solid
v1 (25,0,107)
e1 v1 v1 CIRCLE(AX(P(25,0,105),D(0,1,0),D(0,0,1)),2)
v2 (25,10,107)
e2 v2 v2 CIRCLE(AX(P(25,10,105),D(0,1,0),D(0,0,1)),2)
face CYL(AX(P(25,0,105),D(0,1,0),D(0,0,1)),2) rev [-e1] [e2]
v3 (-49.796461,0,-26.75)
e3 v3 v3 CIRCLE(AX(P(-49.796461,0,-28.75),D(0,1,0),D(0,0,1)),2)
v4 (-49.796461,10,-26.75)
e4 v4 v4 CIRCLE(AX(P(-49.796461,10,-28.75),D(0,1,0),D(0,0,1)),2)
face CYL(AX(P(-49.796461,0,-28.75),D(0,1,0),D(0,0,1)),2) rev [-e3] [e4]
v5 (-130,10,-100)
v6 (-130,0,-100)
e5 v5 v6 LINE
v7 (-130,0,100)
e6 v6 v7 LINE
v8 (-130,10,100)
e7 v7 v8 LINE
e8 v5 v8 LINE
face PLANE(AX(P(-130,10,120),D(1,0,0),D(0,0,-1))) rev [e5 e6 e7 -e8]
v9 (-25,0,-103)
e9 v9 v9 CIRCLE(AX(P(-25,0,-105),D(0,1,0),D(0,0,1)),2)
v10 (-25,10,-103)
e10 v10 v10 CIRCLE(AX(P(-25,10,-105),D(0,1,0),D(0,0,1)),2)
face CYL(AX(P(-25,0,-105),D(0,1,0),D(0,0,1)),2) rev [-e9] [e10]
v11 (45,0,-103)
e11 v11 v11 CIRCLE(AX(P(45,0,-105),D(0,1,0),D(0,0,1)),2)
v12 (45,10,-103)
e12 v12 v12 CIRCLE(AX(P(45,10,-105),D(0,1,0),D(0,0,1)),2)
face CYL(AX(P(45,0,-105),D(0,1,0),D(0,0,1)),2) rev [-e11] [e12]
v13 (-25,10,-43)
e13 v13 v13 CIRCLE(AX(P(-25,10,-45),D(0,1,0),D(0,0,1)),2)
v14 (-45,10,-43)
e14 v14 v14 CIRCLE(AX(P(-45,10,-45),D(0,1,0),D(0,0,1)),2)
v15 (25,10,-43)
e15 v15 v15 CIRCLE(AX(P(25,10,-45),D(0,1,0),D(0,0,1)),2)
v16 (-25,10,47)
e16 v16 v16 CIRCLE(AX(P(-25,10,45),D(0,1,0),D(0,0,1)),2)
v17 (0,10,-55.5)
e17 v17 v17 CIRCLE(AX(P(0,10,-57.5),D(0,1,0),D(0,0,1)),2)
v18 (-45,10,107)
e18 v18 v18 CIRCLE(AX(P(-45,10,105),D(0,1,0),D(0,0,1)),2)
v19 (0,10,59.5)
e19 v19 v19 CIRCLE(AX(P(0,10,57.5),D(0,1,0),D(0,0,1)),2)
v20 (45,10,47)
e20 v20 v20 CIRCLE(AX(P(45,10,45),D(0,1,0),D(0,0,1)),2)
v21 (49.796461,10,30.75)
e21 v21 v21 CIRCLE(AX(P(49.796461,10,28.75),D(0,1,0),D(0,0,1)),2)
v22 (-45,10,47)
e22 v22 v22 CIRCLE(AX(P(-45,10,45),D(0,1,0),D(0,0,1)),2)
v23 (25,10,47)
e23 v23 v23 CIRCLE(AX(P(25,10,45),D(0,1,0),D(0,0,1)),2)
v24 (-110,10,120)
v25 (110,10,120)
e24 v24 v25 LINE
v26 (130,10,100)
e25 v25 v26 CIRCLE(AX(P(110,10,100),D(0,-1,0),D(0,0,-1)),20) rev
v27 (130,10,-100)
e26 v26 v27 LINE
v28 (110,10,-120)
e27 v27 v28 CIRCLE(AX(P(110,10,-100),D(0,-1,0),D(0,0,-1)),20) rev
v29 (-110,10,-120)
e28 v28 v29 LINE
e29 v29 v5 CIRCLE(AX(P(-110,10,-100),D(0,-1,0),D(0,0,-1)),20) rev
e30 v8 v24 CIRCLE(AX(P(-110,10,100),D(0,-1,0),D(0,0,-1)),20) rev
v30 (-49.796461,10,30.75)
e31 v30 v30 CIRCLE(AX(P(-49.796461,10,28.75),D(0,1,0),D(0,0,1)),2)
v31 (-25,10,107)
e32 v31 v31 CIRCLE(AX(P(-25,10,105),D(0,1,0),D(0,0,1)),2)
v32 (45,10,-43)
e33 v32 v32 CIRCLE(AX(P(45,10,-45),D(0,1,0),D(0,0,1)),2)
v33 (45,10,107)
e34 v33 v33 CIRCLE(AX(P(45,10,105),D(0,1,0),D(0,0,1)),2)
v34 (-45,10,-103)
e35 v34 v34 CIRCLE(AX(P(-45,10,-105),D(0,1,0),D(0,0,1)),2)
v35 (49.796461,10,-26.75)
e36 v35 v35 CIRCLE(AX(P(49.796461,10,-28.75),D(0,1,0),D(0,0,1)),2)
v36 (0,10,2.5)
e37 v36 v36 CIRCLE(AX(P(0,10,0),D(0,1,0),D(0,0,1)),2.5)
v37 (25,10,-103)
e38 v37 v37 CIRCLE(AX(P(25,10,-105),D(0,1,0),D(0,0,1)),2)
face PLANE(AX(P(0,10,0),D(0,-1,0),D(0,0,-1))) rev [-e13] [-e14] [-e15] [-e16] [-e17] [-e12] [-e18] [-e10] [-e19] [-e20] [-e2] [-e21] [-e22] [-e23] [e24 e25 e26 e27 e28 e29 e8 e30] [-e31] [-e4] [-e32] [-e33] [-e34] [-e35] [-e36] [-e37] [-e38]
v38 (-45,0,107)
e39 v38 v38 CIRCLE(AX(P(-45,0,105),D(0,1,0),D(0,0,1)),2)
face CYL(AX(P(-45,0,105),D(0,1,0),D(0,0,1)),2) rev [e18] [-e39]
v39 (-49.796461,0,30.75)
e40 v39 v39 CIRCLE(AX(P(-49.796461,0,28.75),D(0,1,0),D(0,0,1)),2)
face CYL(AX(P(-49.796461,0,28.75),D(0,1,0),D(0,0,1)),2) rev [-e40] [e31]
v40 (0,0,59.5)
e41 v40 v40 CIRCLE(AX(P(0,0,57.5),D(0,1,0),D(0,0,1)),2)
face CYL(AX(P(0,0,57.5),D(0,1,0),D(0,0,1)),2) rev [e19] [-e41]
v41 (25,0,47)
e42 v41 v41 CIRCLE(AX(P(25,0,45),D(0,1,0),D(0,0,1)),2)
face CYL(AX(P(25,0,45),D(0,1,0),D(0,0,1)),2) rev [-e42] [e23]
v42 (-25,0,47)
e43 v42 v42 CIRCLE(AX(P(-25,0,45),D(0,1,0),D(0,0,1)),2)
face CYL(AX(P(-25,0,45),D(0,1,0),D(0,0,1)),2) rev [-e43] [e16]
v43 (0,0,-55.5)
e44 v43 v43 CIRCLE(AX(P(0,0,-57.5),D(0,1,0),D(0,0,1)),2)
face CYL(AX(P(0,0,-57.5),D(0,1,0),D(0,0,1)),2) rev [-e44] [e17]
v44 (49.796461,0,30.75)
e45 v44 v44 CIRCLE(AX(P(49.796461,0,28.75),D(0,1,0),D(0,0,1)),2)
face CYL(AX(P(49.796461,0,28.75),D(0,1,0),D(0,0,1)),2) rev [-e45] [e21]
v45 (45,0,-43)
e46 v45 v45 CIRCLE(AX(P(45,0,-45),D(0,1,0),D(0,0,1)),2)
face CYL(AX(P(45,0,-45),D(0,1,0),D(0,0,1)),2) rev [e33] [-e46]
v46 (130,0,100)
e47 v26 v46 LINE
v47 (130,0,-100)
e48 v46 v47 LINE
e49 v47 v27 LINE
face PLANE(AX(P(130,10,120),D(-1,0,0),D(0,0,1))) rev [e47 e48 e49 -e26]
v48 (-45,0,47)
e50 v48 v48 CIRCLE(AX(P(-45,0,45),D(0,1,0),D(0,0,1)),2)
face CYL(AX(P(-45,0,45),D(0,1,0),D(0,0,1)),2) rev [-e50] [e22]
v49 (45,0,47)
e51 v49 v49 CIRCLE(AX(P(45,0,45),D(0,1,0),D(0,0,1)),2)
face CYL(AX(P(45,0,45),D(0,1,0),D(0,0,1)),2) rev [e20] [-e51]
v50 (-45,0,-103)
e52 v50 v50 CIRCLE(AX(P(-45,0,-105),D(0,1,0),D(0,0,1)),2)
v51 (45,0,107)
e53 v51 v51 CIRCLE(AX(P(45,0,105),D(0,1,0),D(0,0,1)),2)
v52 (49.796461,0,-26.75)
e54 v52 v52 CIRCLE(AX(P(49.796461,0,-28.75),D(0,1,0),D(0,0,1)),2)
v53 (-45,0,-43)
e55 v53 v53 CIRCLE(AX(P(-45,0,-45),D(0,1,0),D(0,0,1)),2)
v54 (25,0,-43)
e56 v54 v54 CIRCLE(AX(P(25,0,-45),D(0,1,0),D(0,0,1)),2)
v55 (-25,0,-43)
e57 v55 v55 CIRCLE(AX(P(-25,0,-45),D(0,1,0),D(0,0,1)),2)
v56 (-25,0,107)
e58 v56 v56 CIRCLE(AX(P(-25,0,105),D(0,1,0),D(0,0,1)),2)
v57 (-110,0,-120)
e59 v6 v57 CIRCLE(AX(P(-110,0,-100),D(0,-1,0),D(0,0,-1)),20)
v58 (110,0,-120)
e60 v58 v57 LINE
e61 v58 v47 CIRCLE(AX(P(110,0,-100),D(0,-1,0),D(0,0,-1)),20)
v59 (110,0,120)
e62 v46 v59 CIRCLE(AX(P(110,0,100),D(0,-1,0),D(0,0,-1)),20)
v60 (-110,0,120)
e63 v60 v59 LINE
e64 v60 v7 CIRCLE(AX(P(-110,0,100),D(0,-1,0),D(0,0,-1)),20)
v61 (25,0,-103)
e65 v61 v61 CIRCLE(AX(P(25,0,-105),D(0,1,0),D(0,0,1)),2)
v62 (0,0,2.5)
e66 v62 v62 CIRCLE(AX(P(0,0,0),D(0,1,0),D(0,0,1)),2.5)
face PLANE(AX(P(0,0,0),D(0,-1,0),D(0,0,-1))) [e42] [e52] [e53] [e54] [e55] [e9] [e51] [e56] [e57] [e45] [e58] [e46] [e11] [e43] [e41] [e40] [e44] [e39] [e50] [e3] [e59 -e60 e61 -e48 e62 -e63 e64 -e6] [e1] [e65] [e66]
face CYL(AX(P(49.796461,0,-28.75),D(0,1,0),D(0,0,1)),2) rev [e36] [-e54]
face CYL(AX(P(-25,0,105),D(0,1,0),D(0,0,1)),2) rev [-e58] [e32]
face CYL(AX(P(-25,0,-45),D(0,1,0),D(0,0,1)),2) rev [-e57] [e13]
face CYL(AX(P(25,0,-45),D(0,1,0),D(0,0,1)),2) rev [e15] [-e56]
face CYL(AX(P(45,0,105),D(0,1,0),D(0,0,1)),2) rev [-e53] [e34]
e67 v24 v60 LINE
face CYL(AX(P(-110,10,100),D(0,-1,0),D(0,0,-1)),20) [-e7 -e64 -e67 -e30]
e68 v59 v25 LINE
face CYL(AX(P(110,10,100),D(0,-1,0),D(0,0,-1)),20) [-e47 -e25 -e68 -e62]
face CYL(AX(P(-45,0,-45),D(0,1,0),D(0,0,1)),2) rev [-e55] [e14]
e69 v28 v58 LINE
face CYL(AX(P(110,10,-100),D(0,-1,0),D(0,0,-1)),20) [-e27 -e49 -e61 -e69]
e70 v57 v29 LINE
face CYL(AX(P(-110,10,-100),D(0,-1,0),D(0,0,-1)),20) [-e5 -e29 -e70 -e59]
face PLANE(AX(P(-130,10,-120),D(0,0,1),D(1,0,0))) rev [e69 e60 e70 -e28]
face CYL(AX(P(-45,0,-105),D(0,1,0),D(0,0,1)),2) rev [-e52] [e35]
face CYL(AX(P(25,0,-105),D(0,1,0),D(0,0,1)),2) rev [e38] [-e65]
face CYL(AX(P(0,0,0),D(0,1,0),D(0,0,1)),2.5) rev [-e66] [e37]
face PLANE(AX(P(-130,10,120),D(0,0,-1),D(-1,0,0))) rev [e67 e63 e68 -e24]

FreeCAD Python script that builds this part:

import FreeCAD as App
import Part
import Sketcher

V = App.Vector
Q = App.Units.Quantity


def edges_at(feature, points):
    """Names of the edges that pass closest to the given points."""
    edges = feature.Shape.Edges
    near = lambda p: min(range(len(edges)), key=lambda i: edges[i].distToShape(Part.Vertex(*p))[0])
    return sorted({f"Edge{near(p) + 1}" for p in points})


def add_polygon(sketch, points):
    """Adds a closed chain of lines whose ends are joined by coincident constraints."""
    first, n = sketch.GeometryCount, len(points)
    for a, b in zip(points, points[1:] + points[:1]):
        sketch.addGeometry(Part.LineSegment(App.Vector(*a, 0), App.Vector(*b, 0)), False)
    for i in range(n):
        sketch.addConstraint(Sketcher.Constraint("Coincident", first + i, 2, first + (i + 1) % n, 1))

doc = App.newDocument("Part")
body = doc.addObject("PartDesign::Body", "Body")

sketch1 = body.newObject("Sketcher::SketchObject", "Sketch")
sketch1.AttachmentSupport = (doc.getObject("XZ_Plane"), [""])
sketch1.MapMode = "FlatFace"
add_polygon(sketch1, [(-130, -120), (-130, 120), (130, 120), (130, -120)])
sketch1.addConstraint(Sketcher.Constraint("Vertical", 0))
sketch1.addConstraint(Sketcher.Constraint("Horizontal", 1))
sketch1.addConstraint(Sketcher.Constraint("Vertical", 2))
sketch1.addConstraint(Sketcher.Constraint("Horizontal", 3))
sketch1.addConstraint(Sketcher.Constraint("Symmetric", 0, 2, 2, 2, -1, 1))
sketch1.addConstraint(Sketcher.Constraint("DistanceX", 1, 1, 1, 2, Q("260 mm")))
sketch1.addConstraint(Sketcher.Constraint("DistanceY", 0, 1, 0, 2, Q("240 mm")))
pad1 = body.newObject("PartDesign::Pad", "Pad")
pad1.Profile = sketch1
pad1.Length = 10
pad1.Reversed = True
doc.recompute()

fillet = body.newObject("PartDesign::Fillet", "Fillet")
fillet.Base = (pad1, edges_at(pad1, [
    (130, 5, 120),
    (-130, 5, 120),
    (-130, 5, -120),
    (130, 5, -120),
]))
fillet.Radius = 20

sketch2 = body.newObject("Sketcher::SketchObject", "Sketch001")
sketch2.AttachmentSupport = (doc.getObject("XZ_Plane"), [""])
sketch2.MapMode = "FlatFace"
sketch2.AttachmentOffset = App.Placement(V(0, 0, -10), App.Rotation())
sketch2.addGeometry(Part.Circle(V(0, 0, 0), V(0, 0, 1), 2.5), False)
sketch2.addGeometry(Part.Circle(V(0, -57.5, 0), V(0, 0, 1), 2), False)
sketch2.addGeometry(Part.Circle(V(45, -45, 0), V(0, 0, 1), 2), False)
sketch2.addGeometry(Part.Circle(V(-45, -45, 0), V(0, 0, 1), 2), False)
sketch2.addGeometry(Part.Circle(V(45, -105, 0), V(0, 0, 1), 2), False)
sketch2.addGeometry(Part.Circle(V(-45, -105, 0), V(0, 0, 1), 2), False)
sketch2.addGeometry(Part.Circle(V(25, -105, 0), V(0, 0, 1), 2), False)
sketch2.addGeometry(Part.Circle(V(-25, -105, 0), V(0, 0, 1), 2), False)
sketch2.addGeometry(Part.Circle(V(0, 57.5, 0), V(0, 0, 1), 2), False)
sketch2.addGeometry(Part.Circle(V(49.796461, 28.75, 0), V(0, 0, 1), 2), False)
sketch2.addGeometry(Part.Circle(V(49.796461, -28.75, 0), V(0, 0, 1), 2), False)
sketch2.addGeometry(Part.Circle(V(45, 105, 0), V(0, 0, 1), 2), False)
sketch2.addGeometry(Part.Circle(V(45, 45, 0), V(0, 0, 1), 2), False)
sketch2.addGeometry(Part.Circle(V(25, 45, 0), V(0, 0, 1), 2), False)
sketch2.addGeometry(Part.Circle(V(-25, 45, 0), V(0, 0, 1), 2), False)
sketch2.addGeometry(Part.Circle(V(-45, 45, 0), V(0, 0, 1), 2), False)
sketch2.addGeometry(Part.Circle(V(25, -45, 0), V(0, 0, 1), 2), False)
sketch2.addGeometry(Part.Circle(V(-25, -45, 0), V(0, 0, 1), 2), False)
sketch2.addGeometry(Part.Circle(V(-49.796461, 28.75, 0), V(0, 0, 1), 2), False)
sketch2.addGeometry(Part.Circle(V(-45, 105, 0), V(0, 0, 1), 2), False)
sketch2.addGeometry(Part.Circle(V(-25, 105, 0), V(0, 0, 1), 2), False)
sketch2.addGeometry(Part.Circle(V(25, 105, 0), V(0, 0, 1), 2), False)
sketch2.addGeometry(Part.Circle(V(-49.796461, -28.75, 0), V(0, 0, 1), 2), False)
sketch2.addConstraint(Sketcher.Constraint("Coincident", 0, 3, -1, 1))
sketch2.addConstraint(Sketcher.Constraint("Equal", 1, 2))
sketch2.addConstraint(Sketcher.Constraint("Equal", 2, 3))
sketch2.addConstraint(Sketcher.Constraint("Equal", 3, 4))
sketch2.addConstraint(Sketcher.Constraint("Equal", 4, 5))
sketch2.addConstraint(Sketcher.Constraint("Equal", 5, 6))
sketch2.addConstraint(Sketcher.Constraint("Equal", 6, 7))
sketch2.addConstraint(Sketcher.Constraint("Equal", 7, 8))
sketch2.addConstraint(Sketcher.Constraint("Equal", 8, 9))
sketch2.addConstraint(Sketcher.Constraint("Equal", 9, 10))
sketch2.addConstraint(Sketcher.Constraint("Equal", 10, 11))
sketch2.addConstraint(Sketcher.Constraint("Equal", 11, 12))
sketch2.addConstraint(Sketcher.Constraint("Equal", 12, 13))
sketch2.addConstraint(Sketcher.Constraint("Equal", 13, 14))
sketch2.addConstraint(Sketcher.Constraint("Equal", 14, 15))
sketch2.addConstraint(Sketcher.Constraint("Equal", 15, 16))
sketch2.addConstraint(Sketcher.Constraint("Equal", 16, 17))
sketch2.addConstraint(Sketcher.Constraint("Equal", 17, 18))
sketch2.addConstraint(Sketcher.Constraint("Equal", 18, 19))
sketch2.addConstraint(Sketcher.Constraint("Equal", 19, 20))
sketch2.addConstraint(Sketcher.Constraint("Equal", 20, 21))
sketch2.addConstraint(Sketcher.Constraint("Equal", 21, 22))
sketch2.addConstraint(Sketcher.Constraint("Symmetric", 1, 3, 8, 3, -1, 1))
sketch2.addConstraint(Sketcher.Constraint("Symmetric", 5, 3, 11, 3, -1, 1))
sketch2.addConstraint(Sketcher.Constraint("Symmetric", 3, 3, 12, 3, -1, 1))
sketch2.addConstraint(Sketcher.Constraint("Symmetric", 2, 3, 15, 3, -1, 1))
sketch2.addConstraint(Sketcher.Constraint("Symmetric", 14, 3, 16, 3, -1, 1))
sketch2.addConstraint(Sketcher.Constraint("Symmetric", 13, 3, 17, 3, -1, 1))
sketch2.addConstraint(Sketcher.Constraint("Symmetric", 10, 3, 18, 3, -1, 1))
sketch2.addConstraint(Sketcher.Constraint("Symmetric", 4, 3, 19, 3, -1, 1))
sketch2.addConstraint(Sketcher.Constraint("Symmetric", 6, 3, 20, 3, -1, 1))
sketch2.addConstraint(Sketcher.Constraint("Symmetric", 7, 3, 21, 3, -1, 1))
sketch2.addConstraint(Sketcher.Constraint("Symmetric", 9, 3, 22, 3, -1, 1))
sketch2.addConstraint(Sketcher.Constraint("Symmetric", 2, 3, 3, 3, -2))
sketch2.addConstraint(Sketcher.Constraint("Symmetric", 4, 3, 5, 3, -2))
sketch2.addConstraint(Sketcher.Constraint("Symmetric", 6, 3, 7, 3, -2))
sketch2.addConstraint(Sketcher.Constraint("Symmetric", 13, 3, 14, 3, -2))
sketch2.addConstraint(Sketcher.Constraint("Symmetric", 9, 3, 18, 3, -2))
sketch2.addConstraint(Sketcher.Constraint("PointOnObject", 1, 3, -2))
sketch2.addConstraint(Sketcher.Constraint("Horizontal", 5, 3, 6, 3))
sketch2.addConstraint(Sketcher.Constraint("Horizontal", 12, 3, 13, 3))
sketch2.addConstraint(Sketcher.Constraint("Vertical", 2, 3, 4, 3))
sketch2.addConstraint(Sketcher.Constraint("Vertical", 6, 3, 13, 3))
sketch2.addConstraint(Sketcher.Constraint("Diameter", 0, Q("5 mm")))
sketch2.addConstraint(Sketcher.Constraint("Diameter", 1, Q("4 mm")))
sketch2.addConstraint(Sketcher.Constraint("DistanceX", -1, 1, 2, 3, Q("45 mm")))
sketch2.addConstraint(Sketcher.Constraint("DistanceY", 2, 3, -1, 1, Q("45 mm")))
sketch2.addConstraint(Sketcher.Constraint("DistanceY", 4, 3, -1, 1, Q("105 mm")))
sketch2.addConstraint(Sketcher.Constraint("DistanceX", -1, 1, 6, 3, Q("25 mm")))
sketch2.addConstraint(Sketcher.Constraint("DistanceY", 1, 3, 8, 3, Q("115 mm")))
sketch2.addConstraint(Sketcher.Constraint("DistanceY", 10, 3, 9, 3, Q("57.5 mm")))
sketch2.addConstraint(Sketcher.Constraint("DistanceX", -1, 1, 9, 3, Q("49.796461 mm")))
pocket1 = body.newObject("PartDesign::Pocket", "Pocket")
pocket1.Profile = sketch2
pocket1.Length = 10
pocket1.Reversed = True

doc.recompute()
